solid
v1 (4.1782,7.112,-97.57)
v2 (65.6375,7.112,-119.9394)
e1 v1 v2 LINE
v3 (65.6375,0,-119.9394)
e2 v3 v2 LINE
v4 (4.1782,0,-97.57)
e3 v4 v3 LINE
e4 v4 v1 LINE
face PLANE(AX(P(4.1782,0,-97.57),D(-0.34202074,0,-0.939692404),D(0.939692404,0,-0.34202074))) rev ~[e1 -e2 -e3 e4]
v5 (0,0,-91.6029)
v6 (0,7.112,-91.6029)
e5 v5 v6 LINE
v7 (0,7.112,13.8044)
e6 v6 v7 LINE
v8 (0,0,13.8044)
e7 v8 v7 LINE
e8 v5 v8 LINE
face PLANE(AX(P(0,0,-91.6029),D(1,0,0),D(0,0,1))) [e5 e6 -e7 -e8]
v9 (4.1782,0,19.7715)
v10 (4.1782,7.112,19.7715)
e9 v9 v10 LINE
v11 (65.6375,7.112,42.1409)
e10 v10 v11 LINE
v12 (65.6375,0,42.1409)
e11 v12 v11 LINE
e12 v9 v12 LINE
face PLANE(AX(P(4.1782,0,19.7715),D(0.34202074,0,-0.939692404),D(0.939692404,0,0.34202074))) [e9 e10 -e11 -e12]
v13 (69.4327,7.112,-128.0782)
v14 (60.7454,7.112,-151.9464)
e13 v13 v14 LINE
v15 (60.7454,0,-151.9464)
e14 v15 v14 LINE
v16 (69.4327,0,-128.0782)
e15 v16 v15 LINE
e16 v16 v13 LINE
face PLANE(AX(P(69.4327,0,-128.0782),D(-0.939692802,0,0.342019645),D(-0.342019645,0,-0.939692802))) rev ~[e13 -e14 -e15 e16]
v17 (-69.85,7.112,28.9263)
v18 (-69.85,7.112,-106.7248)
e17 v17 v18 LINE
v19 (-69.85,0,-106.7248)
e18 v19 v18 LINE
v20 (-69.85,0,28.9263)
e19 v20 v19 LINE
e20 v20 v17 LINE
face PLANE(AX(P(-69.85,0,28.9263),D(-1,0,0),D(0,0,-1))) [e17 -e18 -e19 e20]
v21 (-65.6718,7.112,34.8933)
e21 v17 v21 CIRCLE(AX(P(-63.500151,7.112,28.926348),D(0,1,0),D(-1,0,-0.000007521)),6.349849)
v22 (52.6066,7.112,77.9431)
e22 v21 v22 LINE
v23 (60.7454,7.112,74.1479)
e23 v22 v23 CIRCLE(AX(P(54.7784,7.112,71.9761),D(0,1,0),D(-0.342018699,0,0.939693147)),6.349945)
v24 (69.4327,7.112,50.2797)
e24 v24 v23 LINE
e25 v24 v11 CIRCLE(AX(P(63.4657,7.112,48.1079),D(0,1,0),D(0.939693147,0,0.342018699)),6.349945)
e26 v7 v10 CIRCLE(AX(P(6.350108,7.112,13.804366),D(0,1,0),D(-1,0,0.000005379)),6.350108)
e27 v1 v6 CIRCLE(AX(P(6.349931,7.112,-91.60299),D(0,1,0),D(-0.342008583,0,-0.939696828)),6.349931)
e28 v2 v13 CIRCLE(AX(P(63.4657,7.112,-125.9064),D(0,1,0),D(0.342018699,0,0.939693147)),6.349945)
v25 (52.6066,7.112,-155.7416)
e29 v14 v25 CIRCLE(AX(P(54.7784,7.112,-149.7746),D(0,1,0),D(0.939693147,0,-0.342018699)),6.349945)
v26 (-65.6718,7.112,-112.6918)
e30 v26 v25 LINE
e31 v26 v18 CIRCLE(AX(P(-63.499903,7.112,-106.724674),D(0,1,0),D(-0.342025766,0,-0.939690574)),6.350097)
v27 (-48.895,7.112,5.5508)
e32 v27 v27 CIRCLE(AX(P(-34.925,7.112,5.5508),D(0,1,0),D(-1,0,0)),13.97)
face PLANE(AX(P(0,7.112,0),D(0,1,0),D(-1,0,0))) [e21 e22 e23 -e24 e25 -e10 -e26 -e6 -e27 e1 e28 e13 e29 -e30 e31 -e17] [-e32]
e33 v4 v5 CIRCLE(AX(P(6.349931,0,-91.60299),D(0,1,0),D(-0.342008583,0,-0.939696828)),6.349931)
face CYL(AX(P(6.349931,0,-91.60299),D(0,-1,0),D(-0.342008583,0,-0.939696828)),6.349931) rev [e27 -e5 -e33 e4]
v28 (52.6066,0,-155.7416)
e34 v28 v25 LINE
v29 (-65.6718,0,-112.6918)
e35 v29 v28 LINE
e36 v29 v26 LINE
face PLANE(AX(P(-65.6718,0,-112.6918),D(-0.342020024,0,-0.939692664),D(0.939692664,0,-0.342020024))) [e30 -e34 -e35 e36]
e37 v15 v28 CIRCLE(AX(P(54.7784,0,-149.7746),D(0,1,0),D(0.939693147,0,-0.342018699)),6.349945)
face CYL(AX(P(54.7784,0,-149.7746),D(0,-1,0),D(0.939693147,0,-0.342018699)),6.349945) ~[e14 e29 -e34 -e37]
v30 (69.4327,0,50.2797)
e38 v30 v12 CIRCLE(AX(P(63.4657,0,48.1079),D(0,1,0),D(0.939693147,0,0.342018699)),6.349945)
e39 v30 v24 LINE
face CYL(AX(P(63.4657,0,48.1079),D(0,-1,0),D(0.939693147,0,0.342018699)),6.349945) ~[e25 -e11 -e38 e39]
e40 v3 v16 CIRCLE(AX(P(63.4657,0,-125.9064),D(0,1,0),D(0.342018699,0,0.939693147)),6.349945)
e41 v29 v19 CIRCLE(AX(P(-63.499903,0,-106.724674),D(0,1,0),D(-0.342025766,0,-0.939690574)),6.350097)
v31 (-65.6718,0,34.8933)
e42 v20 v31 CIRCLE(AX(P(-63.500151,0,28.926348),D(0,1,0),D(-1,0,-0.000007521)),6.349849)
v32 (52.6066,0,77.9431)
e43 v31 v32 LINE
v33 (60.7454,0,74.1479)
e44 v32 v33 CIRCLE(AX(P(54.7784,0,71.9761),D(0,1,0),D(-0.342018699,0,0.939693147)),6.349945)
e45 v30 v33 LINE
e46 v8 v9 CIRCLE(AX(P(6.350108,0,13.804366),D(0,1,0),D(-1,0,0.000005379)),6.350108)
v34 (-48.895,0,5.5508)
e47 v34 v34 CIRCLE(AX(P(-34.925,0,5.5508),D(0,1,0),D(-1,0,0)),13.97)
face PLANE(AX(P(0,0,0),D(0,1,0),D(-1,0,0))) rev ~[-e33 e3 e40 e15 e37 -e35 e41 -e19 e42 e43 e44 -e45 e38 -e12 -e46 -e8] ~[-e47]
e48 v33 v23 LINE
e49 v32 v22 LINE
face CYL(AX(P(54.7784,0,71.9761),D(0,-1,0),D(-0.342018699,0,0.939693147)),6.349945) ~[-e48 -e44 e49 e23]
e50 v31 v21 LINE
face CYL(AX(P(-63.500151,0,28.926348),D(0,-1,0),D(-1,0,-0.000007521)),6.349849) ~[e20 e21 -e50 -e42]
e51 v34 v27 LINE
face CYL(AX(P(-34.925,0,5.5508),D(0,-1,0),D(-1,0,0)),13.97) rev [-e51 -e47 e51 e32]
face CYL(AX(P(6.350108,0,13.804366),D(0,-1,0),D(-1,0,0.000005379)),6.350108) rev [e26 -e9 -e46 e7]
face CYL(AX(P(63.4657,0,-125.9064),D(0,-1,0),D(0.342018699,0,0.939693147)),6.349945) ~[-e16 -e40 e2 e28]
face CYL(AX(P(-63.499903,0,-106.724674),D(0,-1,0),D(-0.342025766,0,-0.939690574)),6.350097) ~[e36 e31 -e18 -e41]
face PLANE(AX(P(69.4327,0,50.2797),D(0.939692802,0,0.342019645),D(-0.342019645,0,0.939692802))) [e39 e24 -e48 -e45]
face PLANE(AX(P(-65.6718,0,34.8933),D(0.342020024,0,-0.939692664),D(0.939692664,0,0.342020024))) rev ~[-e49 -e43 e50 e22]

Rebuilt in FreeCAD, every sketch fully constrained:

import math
import FreeCAD as App
import Part
import Sketcher
Q = App.Units.Quantity

doc = App.newDocument("Part")
params = doc.addObject("Spreadsheet::Sheet", "Params")
for row, (alias, value) in enumerate([
    ("sketch1_diameter", "1.1 in"),
    ("sketch1_radius", "0.25 in"),
    ("sketch1_length", "1 in"),
    ("pad1_length", "0.28 in"),
], start=1):
    params.set(f"A{row}", alias)
    params.set(f"B{row}", "=" + value)
    params.setAlias(f"B{row}", alias)

body = doc.addObject("PartDesign::Body", "Body")

# Sketch on XZ plane
sketch1 = doc.addObject("Sketcher::SketchObject", "Sketch")
body.addObject(sketch1)
sketch1.AttachmentSupport = (doc.XZ_Plane, [""])
sketch1.MapMode = "FlatFace"
sketch1.addGeometry([
    Part.LineSegment(App.Vector(-70, -107, 0), App.Vector(-70, 29, 0)),  # 0
    Part.ArcOfCircle(Part.Circle(App.Vector(-64, 29, 0), App.Vector(0, 0, 1), 6), math.radians(110), math.radians(180)),  # 1
    Part.LineSegment(App.Vector(-66, 35, 0), App.Vector(53, 78, 0)),  # 2
    Part.ArcOfCircle(Part.Circle(App.Vector(55, 72, 0), App.Vector(0, 0, 1), 6), math.radians(20), math.radians(110)),  # 3
    Part.LineSegment(App.Vector(61, 74, 0), App.Vector(69, 50, 0)),  # 4
    Part.ArcOfCircle(Part.Circle(App.Vector(63, 48, 0), App.Vector(0, 0, 1), 6), math.radians(-70), math.radians(20)),  # 5
    Part.LineSegment(App.Vector(66, 42, 0), App.Vector(4, 20, 0)),  # 6
    Part.ArcOfCircle(Part.Circle(App.Vector(6, 14, 0), App.Vector(0, 0, 1), 6), math.radians(110), math.radians(180)),  # 7
    Part.LineSegment(App.Vector(0, 14, 0), App.Vector(0, -92, 0)),  # 8
    Part.ArcOfCircle(Part.Circle(App.Vector(6, -92, 0), App.Vector(0, 0, 1), 6), math.radians(180), math.radians(250)),  # 9
    Part.LineSegment(App.Vector(4, -98, 0), App.Vector(66, -120, 0)),  # 10
    Part.ArcOfCircle(Part.Circle(App.Vector(63, -126, 0), App.Vector(0, 0, 1), 6), math.radians(-20), math.radians(70)),  # 11
    Part.LineSegment(App.Vector(69, -128, 0), App.Vector(61, -152, 0)),  # 12
    Part.ArcOfCircle(Part.Circle(App.Vector(55, -150, 0), App.Vector(0, 0, 1), 6), math.radians(-110), math.radians(-20)),  # 13
    Part.LineSegment(App.Vector(53, -156, 0), App.Vector(-66, -113, 0)),  # 14
    Part.ArcOfCircle(Part.Circle(App.Vector(-64, -107, 0), App.Vector(0, 0, 1), 6), math.radians(180), math.radians(250)),  # 15
    Part.Circle(App.Vector(-35, 6, 0), App.Vector(0, 0, 1), 14),  # 16
], False)
sketch1.addConstraint([
    Sketcher.Constraint("Tangent", 0, 2, 1, 2),
    Sketcher.Constraint("Tangent", 1, 1, 2, 1),
    Sketcher.Constraint("Tangent", 2, 2, 3, 2),
    Sketcher.Constraint("Tangent", 3, 1, 4, 1),
    Sketcher.Constraint("Tangent", 4, 2, 5, 2),
    Sketcher.Constraint("Tangent", 5, 1, 6, 1),
    Sketcher.Constraint("Tangent", 6, 2, 7, 1),
    Sketcher.Constraint("Tangent", 7, 2, 8, 1),
    Sketcher.Constraint("Tangent", 8, 2, 9, 1),
    Sketcher.Constraint("Tangent", 9, 2, 10, 1),
    Sketcher.Constraint("Tangent", 10, 2, 11, 2),
    Sketcher.Constraint("Tangent", 11, 1, 12, 1),
    Sketcher.Constraint("Tangent", 12, 2, 13, 2),
    Sketcher.Constraint("Tangent", 13, 1, 14, 1),
    Sketcher.Constraint("Tangent", 14, 2, 15, 2),
    Sketcher.Constraint("Tangent", 15, 1, 0, 1),
    Sketcher.Constraint("Vertical", 0),
    Sketcher.Constraint("Vertical", 8),
    Sketcher.Constraint("Equal", 1, 3),
    Sketcher.Constraint("Equal", 3, 5),
    Sketcher.Constraint("Equal", 5, 7),
    Sketcher.Constraint("Equal", 7, 9),
    Sketcher.Constraint("Equal", 9, 11),
    Sketcher.Constraint("Equal", 11, 13),
    Sketcher.Constraint("Equal", 13, 15),
    Sketcher.Constraint("PointOnObject", 7, 2, -2),
    Sketcher.Constraint("Perpendicular", 2, 4),
    Sketcher.Constraint("Perpendicular", 4, 6),
    Sketcher.Constraint("Perpendicular", 10, 12),
    Sketcher.Constraint("Perpendicular", 12, 14),
    Sketcher.Constraint("Vertical", 5, 3, 11, 3),
    Sketcher.Constraint("Vertical", 3, 3, 13, 3),
    Sketcher.Constraint("Vertical", 6, 2, 9, 2),
    Sketcher.Constraint("Diameter", 16, Q("1.1 in")),
    Sketcher.Constraint("Radius", 1, Q("0.25 in")),
    Sketcher.Constraint("Angle", 12, Q("-110 deg")),
    Sketcher.Constraint("DistanceX", 0, 2, 7, 3, Q("3 in")),
    Sketcher.Constraint("Distance", 4, Q("1 in")),
    Sketcher.Constraint("DistanceX", 16, 3, -1, 1, Q("1.375 in")),
    Sketcher.Constraint("DistanceY", 0, 1, 0, 2, Q("5.3406 in")),
    Sketcher.Constraint("DistanceY", -1, 1, 5, 3, Q("1.894 in")),
    Sketcher.Constraint("DistanceY", -1, 1, 6, 2, Q("0.7784 in")),
    Sketcher.Constraint("DistanceY", 16, 3, 1, 3, Q("0.9203 in")),
])
sketch1.setExpression("Constraints[33]", "Params.sketch1_diameter")
sketch1.setExpression("Constraints[34]", "Params.sketch1_radius")
sketch1.setExpression("Constraints[37]", "Params.sketch1_length")
pad1 = doc.addObject("PartDesign::Pad", "Pad")
body.addObject(pad1)
pad1.Profile = sketch1
pad1.setExpression("Length", "Params.pad1_length")
pad1.Reversed = True

doc.recompute()
